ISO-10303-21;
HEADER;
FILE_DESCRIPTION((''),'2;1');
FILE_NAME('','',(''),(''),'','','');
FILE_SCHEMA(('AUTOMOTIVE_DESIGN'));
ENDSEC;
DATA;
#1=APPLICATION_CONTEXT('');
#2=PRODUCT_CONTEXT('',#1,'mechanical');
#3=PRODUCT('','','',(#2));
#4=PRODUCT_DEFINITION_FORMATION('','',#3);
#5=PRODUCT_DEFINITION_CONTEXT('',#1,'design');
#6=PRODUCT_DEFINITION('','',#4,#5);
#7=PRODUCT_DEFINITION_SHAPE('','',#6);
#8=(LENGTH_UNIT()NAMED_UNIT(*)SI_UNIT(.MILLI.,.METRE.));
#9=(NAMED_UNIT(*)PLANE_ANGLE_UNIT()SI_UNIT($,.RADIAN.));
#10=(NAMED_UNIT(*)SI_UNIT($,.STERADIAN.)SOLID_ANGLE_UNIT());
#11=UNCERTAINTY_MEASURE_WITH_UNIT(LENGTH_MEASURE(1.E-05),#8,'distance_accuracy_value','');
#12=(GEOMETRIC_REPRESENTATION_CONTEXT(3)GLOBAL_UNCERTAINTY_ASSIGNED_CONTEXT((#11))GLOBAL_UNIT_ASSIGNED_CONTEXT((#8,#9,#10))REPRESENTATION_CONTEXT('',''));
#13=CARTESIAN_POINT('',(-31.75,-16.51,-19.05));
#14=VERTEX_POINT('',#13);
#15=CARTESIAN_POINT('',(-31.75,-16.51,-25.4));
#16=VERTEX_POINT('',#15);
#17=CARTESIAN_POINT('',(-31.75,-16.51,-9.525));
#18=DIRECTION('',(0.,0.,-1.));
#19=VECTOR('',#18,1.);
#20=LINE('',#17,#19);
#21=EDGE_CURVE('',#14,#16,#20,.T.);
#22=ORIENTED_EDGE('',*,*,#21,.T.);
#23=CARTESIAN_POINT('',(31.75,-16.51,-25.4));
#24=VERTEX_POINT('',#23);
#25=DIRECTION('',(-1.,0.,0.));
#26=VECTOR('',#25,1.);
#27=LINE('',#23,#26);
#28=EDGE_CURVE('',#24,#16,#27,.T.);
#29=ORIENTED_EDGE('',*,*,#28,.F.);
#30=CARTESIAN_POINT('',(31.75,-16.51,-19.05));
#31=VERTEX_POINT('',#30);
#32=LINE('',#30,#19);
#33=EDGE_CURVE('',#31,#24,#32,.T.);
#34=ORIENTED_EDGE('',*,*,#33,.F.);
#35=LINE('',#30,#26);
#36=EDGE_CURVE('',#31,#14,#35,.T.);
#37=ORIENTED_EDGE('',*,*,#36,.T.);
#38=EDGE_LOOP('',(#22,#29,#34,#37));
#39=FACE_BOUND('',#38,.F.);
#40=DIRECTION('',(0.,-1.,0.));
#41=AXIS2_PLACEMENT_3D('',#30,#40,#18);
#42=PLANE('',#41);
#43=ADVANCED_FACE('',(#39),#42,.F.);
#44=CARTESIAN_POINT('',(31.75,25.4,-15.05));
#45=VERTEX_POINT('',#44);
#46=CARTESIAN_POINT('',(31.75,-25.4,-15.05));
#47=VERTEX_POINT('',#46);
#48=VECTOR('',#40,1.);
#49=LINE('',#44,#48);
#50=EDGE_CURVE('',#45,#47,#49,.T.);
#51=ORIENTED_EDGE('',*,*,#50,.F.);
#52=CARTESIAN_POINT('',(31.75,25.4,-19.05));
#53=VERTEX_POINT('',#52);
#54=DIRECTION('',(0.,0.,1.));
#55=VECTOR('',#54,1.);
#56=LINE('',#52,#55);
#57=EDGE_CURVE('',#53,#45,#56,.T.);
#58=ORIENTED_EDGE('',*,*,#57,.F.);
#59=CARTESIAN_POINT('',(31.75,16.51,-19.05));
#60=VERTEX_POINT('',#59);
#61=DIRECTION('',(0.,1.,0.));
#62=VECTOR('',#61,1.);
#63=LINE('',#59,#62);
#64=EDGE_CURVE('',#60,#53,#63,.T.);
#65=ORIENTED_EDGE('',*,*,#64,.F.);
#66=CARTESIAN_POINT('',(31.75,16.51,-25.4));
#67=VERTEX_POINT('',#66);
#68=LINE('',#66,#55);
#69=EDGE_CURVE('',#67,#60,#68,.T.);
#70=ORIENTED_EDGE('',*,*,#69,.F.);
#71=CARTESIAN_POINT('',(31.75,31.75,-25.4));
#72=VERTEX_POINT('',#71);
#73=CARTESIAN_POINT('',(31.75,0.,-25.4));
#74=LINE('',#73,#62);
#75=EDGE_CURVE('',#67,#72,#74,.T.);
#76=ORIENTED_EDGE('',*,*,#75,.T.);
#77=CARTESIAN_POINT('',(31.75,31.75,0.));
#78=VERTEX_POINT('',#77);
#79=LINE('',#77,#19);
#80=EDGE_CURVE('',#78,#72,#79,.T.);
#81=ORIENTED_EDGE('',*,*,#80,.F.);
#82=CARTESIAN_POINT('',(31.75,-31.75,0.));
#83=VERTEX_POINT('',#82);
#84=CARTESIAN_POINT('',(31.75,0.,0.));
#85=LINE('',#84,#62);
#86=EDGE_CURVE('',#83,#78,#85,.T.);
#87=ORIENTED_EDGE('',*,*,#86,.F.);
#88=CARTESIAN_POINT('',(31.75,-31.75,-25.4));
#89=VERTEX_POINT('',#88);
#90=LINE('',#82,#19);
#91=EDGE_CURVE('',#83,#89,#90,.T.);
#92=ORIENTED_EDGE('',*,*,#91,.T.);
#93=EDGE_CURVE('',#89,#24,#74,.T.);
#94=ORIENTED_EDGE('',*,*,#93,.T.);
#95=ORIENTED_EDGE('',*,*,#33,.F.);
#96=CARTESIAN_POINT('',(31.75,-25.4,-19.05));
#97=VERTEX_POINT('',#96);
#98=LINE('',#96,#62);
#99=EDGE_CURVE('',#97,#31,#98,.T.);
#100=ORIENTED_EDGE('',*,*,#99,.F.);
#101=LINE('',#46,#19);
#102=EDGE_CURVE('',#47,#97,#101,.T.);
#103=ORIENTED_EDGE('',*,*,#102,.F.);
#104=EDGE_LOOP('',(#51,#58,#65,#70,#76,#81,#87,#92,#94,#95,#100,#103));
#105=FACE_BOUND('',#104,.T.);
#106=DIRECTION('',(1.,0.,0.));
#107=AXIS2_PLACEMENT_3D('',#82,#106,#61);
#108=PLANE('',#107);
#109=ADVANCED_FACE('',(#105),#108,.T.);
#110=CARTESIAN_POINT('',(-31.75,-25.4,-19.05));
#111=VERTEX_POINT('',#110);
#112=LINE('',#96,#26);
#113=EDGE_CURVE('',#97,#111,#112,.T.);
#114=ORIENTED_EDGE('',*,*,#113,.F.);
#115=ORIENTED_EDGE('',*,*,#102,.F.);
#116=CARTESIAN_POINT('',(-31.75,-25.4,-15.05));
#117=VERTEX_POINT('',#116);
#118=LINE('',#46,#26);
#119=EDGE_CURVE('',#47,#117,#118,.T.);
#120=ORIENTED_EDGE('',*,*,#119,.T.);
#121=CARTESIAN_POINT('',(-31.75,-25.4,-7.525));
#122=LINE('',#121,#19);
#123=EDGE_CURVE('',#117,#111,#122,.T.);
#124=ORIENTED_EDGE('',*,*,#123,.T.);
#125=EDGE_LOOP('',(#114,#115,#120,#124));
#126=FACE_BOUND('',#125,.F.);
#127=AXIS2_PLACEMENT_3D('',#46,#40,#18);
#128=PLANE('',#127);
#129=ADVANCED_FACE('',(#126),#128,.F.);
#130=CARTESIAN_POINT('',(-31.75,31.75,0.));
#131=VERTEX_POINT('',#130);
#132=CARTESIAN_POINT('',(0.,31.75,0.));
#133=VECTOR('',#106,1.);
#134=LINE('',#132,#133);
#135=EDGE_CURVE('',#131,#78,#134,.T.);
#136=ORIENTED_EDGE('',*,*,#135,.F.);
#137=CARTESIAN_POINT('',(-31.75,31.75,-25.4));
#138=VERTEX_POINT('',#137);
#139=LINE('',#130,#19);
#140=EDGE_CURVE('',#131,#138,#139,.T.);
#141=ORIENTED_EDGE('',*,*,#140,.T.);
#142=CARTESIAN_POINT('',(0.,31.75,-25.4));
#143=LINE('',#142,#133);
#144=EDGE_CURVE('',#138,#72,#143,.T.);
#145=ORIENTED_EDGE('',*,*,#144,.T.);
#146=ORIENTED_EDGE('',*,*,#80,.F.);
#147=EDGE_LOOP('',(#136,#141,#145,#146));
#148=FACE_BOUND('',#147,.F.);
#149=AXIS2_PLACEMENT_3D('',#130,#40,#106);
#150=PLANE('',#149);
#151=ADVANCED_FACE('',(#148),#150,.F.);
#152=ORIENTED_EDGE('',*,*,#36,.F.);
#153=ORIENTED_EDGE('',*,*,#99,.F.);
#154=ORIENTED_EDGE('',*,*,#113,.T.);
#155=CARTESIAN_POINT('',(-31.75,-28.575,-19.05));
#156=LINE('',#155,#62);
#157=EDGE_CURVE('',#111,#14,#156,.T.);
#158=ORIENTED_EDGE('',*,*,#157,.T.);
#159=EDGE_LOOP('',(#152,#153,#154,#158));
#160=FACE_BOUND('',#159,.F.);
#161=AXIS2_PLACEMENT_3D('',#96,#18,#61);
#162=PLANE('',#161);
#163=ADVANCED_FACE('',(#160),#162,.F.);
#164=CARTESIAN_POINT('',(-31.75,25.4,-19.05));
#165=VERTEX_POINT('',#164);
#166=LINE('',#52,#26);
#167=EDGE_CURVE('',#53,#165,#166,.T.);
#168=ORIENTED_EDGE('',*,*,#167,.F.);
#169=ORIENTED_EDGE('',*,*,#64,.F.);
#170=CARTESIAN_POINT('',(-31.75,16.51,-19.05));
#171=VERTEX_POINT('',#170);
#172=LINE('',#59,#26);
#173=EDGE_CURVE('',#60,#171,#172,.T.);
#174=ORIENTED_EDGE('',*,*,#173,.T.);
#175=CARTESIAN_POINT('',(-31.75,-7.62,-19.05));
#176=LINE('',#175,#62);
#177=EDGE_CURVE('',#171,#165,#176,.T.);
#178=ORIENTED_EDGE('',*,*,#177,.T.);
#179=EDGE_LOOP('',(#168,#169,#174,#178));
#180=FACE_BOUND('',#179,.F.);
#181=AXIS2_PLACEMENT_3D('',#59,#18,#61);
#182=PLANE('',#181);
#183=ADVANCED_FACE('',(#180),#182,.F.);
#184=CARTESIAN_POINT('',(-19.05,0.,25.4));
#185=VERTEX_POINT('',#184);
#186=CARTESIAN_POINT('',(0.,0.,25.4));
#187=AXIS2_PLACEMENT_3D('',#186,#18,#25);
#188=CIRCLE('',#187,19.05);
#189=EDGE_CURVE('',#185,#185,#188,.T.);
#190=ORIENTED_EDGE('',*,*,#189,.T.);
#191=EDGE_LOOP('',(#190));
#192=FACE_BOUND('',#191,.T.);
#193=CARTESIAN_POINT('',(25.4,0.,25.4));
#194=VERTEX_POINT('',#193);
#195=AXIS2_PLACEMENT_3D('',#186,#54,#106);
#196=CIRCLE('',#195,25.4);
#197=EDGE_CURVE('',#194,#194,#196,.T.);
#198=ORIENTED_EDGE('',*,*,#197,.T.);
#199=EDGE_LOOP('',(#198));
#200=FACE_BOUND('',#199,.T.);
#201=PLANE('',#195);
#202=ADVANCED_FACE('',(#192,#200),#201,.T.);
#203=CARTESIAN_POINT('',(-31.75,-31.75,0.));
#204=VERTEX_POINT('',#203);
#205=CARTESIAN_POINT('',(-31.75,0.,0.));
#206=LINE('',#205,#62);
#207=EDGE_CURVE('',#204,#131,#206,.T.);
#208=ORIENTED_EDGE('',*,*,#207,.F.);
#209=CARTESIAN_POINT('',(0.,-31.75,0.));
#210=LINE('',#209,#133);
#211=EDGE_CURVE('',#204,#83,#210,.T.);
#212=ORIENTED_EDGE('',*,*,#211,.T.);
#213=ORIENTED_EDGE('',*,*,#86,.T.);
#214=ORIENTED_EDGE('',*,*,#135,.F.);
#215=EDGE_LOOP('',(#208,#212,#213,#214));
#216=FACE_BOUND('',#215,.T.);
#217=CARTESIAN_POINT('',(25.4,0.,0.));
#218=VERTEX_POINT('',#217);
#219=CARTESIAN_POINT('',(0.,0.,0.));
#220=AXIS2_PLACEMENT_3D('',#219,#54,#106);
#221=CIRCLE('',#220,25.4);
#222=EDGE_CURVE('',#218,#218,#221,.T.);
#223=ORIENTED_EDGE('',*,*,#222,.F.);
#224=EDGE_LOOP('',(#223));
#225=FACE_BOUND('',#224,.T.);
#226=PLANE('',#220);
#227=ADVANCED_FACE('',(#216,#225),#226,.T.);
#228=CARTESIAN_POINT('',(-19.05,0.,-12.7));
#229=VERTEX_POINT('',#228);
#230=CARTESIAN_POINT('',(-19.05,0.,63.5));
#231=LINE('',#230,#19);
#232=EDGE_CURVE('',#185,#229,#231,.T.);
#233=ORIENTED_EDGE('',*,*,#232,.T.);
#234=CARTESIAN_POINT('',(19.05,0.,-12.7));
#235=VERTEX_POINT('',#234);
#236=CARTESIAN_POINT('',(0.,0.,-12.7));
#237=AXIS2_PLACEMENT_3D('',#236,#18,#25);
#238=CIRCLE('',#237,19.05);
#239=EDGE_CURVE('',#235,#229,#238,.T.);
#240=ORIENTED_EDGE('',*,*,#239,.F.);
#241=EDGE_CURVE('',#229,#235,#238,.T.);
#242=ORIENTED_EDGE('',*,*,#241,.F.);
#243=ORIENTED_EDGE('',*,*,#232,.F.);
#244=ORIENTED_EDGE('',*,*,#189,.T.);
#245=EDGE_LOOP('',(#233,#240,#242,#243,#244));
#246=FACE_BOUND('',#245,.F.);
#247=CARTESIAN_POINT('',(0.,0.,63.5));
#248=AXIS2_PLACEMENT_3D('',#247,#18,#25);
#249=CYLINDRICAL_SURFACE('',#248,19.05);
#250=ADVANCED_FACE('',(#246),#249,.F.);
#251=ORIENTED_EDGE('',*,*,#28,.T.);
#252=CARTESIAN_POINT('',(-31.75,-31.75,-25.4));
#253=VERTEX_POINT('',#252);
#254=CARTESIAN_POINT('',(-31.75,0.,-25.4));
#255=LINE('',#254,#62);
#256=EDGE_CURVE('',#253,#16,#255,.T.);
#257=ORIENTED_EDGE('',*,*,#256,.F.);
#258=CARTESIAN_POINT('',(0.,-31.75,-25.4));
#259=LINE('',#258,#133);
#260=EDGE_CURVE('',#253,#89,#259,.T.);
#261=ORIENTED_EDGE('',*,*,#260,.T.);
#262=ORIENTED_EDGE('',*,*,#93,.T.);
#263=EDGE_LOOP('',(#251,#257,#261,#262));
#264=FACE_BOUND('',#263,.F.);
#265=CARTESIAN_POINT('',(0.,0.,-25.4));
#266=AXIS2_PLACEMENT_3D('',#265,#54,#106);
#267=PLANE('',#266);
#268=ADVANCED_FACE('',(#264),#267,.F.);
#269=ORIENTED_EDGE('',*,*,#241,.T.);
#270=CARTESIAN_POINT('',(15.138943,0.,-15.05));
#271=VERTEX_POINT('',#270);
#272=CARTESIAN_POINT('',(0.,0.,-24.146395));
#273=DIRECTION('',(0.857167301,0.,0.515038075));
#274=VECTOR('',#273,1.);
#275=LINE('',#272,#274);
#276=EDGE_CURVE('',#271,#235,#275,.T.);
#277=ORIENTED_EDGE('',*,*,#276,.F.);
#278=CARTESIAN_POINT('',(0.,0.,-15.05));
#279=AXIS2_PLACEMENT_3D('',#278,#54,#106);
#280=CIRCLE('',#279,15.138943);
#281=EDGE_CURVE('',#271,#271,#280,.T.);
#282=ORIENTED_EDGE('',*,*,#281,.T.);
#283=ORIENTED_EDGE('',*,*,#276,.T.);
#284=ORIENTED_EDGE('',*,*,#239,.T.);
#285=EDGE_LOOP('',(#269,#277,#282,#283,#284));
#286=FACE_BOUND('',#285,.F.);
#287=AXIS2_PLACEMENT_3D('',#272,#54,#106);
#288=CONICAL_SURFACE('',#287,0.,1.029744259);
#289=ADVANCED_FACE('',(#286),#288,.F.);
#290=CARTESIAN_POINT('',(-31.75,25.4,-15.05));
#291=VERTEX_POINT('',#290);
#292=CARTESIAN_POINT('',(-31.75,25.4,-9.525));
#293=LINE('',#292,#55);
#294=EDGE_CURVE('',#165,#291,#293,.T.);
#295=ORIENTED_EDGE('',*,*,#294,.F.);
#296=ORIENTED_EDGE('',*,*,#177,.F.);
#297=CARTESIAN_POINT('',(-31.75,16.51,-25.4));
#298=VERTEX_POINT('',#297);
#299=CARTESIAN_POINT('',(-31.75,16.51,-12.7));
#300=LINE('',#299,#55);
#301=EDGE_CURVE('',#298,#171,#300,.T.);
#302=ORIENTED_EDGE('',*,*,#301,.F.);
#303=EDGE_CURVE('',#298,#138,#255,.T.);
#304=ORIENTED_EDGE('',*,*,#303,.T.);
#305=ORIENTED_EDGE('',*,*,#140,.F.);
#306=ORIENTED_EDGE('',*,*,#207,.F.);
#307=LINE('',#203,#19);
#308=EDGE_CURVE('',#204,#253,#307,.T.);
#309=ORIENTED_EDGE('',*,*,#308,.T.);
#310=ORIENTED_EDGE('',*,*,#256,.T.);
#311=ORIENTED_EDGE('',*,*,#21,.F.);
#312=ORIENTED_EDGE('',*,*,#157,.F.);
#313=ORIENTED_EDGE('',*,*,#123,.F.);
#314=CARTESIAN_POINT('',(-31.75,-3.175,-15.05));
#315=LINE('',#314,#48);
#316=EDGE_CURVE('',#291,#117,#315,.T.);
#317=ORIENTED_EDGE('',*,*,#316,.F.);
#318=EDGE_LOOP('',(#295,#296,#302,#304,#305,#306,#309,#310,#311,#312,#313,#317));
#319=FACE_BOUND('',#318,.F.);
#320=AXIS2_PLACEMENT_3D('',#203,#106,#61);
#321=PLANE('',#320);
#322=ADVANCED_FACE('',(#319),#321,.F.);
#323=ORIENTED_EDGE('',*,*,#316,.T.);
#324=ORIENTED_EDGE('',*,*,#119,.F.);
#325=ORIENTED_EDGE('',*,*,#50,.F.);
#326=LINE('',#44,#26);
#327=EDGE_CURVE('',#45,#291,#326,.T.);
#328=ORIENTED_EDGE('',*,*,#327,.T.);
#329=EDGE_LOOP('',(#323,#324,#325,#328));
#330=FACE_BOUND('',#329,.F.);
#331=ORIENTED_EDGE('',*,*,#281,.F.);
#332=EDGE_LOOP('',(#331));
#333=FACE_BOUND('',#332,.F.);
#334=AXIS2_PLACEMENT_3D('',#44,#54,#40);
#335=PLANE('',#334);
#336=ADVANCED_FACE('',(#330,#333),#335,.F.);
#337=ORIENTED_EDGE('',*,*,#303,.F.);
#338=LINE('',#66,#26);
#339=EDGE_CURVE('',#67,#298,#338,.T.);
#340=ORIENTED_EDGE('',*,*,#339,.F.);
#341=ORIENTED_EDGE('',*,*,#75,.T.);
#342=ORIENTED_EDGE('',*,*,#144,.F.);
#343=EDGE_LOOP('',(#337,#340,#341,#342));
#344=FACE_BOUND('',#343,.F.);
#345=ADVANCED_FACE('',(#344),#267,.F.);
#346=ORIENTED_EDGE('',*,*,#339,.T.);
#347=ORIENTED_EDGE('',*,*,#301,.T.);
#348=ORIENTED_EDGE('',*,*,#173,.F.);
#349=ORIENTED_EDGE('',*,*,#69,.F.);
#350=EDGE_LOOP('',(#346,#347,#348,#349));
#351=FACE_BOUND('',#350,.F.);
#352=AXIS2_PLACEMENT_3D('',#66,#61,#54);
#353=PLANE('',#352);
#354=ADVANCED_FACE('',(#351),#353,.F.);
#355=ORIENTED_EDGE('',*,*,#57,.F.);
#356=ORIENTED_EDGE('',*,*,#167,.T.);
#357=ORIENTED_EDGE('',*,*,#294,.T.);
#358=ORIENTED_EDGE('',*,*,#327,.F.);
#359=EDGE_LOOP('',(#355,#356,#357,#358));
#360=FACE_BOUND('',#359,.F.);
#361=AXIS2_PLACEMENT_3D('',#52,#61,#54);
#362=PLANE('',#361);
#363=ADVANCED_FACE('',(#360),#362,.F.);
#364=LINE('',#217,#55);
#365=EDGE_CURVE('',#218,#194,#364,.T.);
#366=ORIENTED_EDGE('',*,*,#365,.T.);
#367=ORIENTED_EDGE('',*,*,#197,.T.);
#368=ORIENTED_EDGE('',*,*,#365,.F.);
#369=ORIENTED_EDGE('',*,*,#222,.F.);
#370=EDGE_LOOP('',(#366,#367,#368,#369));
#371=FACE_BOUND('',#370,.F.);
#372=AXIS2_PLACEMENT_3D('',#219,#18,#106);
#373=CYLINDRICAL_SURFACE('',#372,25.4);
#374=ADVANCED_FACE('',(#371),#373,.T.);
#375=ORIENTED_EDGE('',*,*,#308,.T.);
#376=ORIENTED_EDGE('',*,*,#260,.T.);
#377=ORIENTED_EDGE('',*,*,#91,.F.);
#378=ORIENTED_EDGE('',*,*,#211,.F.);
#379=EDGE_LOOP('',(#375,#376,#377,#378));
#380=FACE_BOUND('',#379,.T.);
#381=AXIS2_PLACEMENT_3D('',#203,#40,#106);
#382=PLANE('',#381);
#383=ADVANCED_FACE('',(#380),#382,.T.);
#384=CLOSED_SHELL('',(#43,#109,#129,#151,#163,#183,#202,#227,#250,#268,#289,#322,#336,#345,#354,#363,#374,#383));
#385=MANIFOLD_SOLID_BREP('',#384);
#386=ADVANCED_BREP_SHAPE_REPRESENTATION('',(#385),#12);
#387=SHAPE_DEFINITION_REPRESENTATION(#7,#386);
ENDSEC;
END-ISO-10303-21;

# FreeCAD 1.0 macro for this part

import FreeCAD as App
import Part
import Sketcher

V = App.Vector
Q = App.Units.Quantity


def add_polygon(sketch, points):
    """Adds a closed chain of lines whose ends are joined by coincident constraints."""
    first, n = sketch.GeometryCount, len(points)
    for a, b in zip(points, points[1:] + points[:1]):
        sketch.addGeometry(Part.LineSegment(App.Vector(*a, 0), App.Vector(*b, 0)), False)
    for i in range(n):
        sketch.addConstraint(Sketcher.Constraint("Coincident", first + i, 2, first + (i + 1) % n, 1))

doc = App.newDocument("Part")
body = doc.addObject("PartDesign::Body", "Body")

# Sketch on XY plane
sketch1 = body.newObject("Sketcher::SketchObject", "Sketch")
sketch1.AttachmentSupport = (doc.getObject("XY_Plane"), [""])
sketch1.MapMode = "FlatFace"
sketch1.addGeometry(Part.Circle(V(0, 0, 0), V(0, 0, 1), 25), False)
sketch1.addConstraint([
    Sketcher.Constraint("Coincident", 0, 3, -1, 1),
    Sketcher.Constraint("Diameter", 0, Q("2 in")),
])
pad1 = body.newObject("PartDesign::Pad", "Pad")
pad1.Profile = sketch1
pad1.Length = Q("1 in")

# Sketch on XY plane
sketch2 = body.newObject("Sketcher::SketchObject", "Sketch001")
sketch2.AttachmentSupport = (doc.getObject("XY_Plane"), [""])
sketch2.MapMode = "FlatFace"
add_polygon(sketch2, [(-32, 32), (-32, -32), (32, -32), (32, 32)])  # lines 0-3
sketch2.addConstraint([
    Sketcher.Constraint("Vertical", 0),
    Sketcher.Constraint("Horizontal", 1),
    Sketcher.Constraint("Vertical", 2),
    Sketcher.Constraint("Horizontal", 3),
    Sketcher.Constraint("Symmetric", 0, 2, 2, 2, -1, 1),
    Sketcher.Constraint("Equal", 3, 0),
    Sketcher.Constraint("DistanceX", 1, 1, 1, 2, Q("2.5 in")),
])
pad2 = body.newObject("PartDesign::Pad", "Pad001")
pad2.Profile = sketch2
pad2.Length = Q("1 in")
pad2.Reversed = True

# Sketch on YZ plane
sketch3 = body.newObject("Sketcher::SketchObject", "Sketch002")
sketch3.AttachmentSupport = (doc.getObject("YZ_Plane"), [""])
sketch3.MapMode = "FlatFace"
sketch3.AttachmentOffset = App.Placement(V(0, 0, 1.25 * 25.4), App.Rotation())
add_polygon(sketch3, [(-25.4, -19.1), (-16.5, -19.1), (-16.5, -25.4), (16.5, -25.4), (16.5, -19.1), (25.4, -19.1), (25.4, -15.1), (-25.4, -15.1)])  # lines 0-7
sketch3.addConstraint([
    Sketcher.Constraint("Horizontal", 0),
    Sketcher.Constraint("Vertical", 1),
    Sketcher.Constraint("Horizontal", 2),
    Sketcher.Constraint("Vertical", 3),
    Sketcher.Constraint("Horizontal", 4),
    Sketcher.Constraint("Vertical", 5),
    Sketcher.Constraint("Horizontal", 6),
    Sketcher.Constraint("Vertical", 7),
    Sketcher.Constraint("Symmetric", 0, 2, 3, 2, -2),
    Sketcher.Constraint("Equal", 0, 4),
    Sketcher.Constraint("DistanceX", 6, 2, 6, 1, Q("2 in")),
    Sketcher.Constraint("DistanceX", 2, 1, 2, 2, Q("1.3 in")),
    Sketcher.Constraint("DistanceY", 1, 2, -1, 1, Q("1 in")),
    Sketcher.Constraint("DistanceY", 1, 2, 1, 1, Q("0.25 in")),
    Sketcher.Constraint("DistanceY", 5, 1, 5, 2, Q("4 mm")),
])
pocket1 = body.newObject("PartDesign::Pocket", "Pocket")
pocket1.Profile = sketch3
pocket1.Type = "ThroughAll"

# Sketch on XY plane
sketch4 = body.newObject("Sketcher::SketchObject", "Sketch003")
sketch4.AttachmentSupport = (doc.getObject("XY_Plane"), [""])
sketch4.MapMode = "FlatFace"
sketch4.AttachmentOffset = App.Placement(V(0, 0, 1 * 25.4), App.Rotation())
sketch4.addGeometry(Part.Circle(V(0, 0, 0), V(0, 0, 1), 19), False)
sketch4.addConstraint([
    Sketcher.Constraint("Coincident", 0, 3, -1, 1),
    Sketcher.Constraint("Diameter", 0, Q("1.5 in")),
])
doc.recompute()
hole = body.newObject("PartDesign::Hole", "Hole")
hole.Profile = sketch4
hole.ThreadType = "None"
hole.Diameter = Q("1.5 in")
hole.DepthType = "Dimension"
hole.Depth = Q("1.5 in")
hole.DrillPoint = "Angled"
hole.DrillPointAngle = 118

doc.recompute()
